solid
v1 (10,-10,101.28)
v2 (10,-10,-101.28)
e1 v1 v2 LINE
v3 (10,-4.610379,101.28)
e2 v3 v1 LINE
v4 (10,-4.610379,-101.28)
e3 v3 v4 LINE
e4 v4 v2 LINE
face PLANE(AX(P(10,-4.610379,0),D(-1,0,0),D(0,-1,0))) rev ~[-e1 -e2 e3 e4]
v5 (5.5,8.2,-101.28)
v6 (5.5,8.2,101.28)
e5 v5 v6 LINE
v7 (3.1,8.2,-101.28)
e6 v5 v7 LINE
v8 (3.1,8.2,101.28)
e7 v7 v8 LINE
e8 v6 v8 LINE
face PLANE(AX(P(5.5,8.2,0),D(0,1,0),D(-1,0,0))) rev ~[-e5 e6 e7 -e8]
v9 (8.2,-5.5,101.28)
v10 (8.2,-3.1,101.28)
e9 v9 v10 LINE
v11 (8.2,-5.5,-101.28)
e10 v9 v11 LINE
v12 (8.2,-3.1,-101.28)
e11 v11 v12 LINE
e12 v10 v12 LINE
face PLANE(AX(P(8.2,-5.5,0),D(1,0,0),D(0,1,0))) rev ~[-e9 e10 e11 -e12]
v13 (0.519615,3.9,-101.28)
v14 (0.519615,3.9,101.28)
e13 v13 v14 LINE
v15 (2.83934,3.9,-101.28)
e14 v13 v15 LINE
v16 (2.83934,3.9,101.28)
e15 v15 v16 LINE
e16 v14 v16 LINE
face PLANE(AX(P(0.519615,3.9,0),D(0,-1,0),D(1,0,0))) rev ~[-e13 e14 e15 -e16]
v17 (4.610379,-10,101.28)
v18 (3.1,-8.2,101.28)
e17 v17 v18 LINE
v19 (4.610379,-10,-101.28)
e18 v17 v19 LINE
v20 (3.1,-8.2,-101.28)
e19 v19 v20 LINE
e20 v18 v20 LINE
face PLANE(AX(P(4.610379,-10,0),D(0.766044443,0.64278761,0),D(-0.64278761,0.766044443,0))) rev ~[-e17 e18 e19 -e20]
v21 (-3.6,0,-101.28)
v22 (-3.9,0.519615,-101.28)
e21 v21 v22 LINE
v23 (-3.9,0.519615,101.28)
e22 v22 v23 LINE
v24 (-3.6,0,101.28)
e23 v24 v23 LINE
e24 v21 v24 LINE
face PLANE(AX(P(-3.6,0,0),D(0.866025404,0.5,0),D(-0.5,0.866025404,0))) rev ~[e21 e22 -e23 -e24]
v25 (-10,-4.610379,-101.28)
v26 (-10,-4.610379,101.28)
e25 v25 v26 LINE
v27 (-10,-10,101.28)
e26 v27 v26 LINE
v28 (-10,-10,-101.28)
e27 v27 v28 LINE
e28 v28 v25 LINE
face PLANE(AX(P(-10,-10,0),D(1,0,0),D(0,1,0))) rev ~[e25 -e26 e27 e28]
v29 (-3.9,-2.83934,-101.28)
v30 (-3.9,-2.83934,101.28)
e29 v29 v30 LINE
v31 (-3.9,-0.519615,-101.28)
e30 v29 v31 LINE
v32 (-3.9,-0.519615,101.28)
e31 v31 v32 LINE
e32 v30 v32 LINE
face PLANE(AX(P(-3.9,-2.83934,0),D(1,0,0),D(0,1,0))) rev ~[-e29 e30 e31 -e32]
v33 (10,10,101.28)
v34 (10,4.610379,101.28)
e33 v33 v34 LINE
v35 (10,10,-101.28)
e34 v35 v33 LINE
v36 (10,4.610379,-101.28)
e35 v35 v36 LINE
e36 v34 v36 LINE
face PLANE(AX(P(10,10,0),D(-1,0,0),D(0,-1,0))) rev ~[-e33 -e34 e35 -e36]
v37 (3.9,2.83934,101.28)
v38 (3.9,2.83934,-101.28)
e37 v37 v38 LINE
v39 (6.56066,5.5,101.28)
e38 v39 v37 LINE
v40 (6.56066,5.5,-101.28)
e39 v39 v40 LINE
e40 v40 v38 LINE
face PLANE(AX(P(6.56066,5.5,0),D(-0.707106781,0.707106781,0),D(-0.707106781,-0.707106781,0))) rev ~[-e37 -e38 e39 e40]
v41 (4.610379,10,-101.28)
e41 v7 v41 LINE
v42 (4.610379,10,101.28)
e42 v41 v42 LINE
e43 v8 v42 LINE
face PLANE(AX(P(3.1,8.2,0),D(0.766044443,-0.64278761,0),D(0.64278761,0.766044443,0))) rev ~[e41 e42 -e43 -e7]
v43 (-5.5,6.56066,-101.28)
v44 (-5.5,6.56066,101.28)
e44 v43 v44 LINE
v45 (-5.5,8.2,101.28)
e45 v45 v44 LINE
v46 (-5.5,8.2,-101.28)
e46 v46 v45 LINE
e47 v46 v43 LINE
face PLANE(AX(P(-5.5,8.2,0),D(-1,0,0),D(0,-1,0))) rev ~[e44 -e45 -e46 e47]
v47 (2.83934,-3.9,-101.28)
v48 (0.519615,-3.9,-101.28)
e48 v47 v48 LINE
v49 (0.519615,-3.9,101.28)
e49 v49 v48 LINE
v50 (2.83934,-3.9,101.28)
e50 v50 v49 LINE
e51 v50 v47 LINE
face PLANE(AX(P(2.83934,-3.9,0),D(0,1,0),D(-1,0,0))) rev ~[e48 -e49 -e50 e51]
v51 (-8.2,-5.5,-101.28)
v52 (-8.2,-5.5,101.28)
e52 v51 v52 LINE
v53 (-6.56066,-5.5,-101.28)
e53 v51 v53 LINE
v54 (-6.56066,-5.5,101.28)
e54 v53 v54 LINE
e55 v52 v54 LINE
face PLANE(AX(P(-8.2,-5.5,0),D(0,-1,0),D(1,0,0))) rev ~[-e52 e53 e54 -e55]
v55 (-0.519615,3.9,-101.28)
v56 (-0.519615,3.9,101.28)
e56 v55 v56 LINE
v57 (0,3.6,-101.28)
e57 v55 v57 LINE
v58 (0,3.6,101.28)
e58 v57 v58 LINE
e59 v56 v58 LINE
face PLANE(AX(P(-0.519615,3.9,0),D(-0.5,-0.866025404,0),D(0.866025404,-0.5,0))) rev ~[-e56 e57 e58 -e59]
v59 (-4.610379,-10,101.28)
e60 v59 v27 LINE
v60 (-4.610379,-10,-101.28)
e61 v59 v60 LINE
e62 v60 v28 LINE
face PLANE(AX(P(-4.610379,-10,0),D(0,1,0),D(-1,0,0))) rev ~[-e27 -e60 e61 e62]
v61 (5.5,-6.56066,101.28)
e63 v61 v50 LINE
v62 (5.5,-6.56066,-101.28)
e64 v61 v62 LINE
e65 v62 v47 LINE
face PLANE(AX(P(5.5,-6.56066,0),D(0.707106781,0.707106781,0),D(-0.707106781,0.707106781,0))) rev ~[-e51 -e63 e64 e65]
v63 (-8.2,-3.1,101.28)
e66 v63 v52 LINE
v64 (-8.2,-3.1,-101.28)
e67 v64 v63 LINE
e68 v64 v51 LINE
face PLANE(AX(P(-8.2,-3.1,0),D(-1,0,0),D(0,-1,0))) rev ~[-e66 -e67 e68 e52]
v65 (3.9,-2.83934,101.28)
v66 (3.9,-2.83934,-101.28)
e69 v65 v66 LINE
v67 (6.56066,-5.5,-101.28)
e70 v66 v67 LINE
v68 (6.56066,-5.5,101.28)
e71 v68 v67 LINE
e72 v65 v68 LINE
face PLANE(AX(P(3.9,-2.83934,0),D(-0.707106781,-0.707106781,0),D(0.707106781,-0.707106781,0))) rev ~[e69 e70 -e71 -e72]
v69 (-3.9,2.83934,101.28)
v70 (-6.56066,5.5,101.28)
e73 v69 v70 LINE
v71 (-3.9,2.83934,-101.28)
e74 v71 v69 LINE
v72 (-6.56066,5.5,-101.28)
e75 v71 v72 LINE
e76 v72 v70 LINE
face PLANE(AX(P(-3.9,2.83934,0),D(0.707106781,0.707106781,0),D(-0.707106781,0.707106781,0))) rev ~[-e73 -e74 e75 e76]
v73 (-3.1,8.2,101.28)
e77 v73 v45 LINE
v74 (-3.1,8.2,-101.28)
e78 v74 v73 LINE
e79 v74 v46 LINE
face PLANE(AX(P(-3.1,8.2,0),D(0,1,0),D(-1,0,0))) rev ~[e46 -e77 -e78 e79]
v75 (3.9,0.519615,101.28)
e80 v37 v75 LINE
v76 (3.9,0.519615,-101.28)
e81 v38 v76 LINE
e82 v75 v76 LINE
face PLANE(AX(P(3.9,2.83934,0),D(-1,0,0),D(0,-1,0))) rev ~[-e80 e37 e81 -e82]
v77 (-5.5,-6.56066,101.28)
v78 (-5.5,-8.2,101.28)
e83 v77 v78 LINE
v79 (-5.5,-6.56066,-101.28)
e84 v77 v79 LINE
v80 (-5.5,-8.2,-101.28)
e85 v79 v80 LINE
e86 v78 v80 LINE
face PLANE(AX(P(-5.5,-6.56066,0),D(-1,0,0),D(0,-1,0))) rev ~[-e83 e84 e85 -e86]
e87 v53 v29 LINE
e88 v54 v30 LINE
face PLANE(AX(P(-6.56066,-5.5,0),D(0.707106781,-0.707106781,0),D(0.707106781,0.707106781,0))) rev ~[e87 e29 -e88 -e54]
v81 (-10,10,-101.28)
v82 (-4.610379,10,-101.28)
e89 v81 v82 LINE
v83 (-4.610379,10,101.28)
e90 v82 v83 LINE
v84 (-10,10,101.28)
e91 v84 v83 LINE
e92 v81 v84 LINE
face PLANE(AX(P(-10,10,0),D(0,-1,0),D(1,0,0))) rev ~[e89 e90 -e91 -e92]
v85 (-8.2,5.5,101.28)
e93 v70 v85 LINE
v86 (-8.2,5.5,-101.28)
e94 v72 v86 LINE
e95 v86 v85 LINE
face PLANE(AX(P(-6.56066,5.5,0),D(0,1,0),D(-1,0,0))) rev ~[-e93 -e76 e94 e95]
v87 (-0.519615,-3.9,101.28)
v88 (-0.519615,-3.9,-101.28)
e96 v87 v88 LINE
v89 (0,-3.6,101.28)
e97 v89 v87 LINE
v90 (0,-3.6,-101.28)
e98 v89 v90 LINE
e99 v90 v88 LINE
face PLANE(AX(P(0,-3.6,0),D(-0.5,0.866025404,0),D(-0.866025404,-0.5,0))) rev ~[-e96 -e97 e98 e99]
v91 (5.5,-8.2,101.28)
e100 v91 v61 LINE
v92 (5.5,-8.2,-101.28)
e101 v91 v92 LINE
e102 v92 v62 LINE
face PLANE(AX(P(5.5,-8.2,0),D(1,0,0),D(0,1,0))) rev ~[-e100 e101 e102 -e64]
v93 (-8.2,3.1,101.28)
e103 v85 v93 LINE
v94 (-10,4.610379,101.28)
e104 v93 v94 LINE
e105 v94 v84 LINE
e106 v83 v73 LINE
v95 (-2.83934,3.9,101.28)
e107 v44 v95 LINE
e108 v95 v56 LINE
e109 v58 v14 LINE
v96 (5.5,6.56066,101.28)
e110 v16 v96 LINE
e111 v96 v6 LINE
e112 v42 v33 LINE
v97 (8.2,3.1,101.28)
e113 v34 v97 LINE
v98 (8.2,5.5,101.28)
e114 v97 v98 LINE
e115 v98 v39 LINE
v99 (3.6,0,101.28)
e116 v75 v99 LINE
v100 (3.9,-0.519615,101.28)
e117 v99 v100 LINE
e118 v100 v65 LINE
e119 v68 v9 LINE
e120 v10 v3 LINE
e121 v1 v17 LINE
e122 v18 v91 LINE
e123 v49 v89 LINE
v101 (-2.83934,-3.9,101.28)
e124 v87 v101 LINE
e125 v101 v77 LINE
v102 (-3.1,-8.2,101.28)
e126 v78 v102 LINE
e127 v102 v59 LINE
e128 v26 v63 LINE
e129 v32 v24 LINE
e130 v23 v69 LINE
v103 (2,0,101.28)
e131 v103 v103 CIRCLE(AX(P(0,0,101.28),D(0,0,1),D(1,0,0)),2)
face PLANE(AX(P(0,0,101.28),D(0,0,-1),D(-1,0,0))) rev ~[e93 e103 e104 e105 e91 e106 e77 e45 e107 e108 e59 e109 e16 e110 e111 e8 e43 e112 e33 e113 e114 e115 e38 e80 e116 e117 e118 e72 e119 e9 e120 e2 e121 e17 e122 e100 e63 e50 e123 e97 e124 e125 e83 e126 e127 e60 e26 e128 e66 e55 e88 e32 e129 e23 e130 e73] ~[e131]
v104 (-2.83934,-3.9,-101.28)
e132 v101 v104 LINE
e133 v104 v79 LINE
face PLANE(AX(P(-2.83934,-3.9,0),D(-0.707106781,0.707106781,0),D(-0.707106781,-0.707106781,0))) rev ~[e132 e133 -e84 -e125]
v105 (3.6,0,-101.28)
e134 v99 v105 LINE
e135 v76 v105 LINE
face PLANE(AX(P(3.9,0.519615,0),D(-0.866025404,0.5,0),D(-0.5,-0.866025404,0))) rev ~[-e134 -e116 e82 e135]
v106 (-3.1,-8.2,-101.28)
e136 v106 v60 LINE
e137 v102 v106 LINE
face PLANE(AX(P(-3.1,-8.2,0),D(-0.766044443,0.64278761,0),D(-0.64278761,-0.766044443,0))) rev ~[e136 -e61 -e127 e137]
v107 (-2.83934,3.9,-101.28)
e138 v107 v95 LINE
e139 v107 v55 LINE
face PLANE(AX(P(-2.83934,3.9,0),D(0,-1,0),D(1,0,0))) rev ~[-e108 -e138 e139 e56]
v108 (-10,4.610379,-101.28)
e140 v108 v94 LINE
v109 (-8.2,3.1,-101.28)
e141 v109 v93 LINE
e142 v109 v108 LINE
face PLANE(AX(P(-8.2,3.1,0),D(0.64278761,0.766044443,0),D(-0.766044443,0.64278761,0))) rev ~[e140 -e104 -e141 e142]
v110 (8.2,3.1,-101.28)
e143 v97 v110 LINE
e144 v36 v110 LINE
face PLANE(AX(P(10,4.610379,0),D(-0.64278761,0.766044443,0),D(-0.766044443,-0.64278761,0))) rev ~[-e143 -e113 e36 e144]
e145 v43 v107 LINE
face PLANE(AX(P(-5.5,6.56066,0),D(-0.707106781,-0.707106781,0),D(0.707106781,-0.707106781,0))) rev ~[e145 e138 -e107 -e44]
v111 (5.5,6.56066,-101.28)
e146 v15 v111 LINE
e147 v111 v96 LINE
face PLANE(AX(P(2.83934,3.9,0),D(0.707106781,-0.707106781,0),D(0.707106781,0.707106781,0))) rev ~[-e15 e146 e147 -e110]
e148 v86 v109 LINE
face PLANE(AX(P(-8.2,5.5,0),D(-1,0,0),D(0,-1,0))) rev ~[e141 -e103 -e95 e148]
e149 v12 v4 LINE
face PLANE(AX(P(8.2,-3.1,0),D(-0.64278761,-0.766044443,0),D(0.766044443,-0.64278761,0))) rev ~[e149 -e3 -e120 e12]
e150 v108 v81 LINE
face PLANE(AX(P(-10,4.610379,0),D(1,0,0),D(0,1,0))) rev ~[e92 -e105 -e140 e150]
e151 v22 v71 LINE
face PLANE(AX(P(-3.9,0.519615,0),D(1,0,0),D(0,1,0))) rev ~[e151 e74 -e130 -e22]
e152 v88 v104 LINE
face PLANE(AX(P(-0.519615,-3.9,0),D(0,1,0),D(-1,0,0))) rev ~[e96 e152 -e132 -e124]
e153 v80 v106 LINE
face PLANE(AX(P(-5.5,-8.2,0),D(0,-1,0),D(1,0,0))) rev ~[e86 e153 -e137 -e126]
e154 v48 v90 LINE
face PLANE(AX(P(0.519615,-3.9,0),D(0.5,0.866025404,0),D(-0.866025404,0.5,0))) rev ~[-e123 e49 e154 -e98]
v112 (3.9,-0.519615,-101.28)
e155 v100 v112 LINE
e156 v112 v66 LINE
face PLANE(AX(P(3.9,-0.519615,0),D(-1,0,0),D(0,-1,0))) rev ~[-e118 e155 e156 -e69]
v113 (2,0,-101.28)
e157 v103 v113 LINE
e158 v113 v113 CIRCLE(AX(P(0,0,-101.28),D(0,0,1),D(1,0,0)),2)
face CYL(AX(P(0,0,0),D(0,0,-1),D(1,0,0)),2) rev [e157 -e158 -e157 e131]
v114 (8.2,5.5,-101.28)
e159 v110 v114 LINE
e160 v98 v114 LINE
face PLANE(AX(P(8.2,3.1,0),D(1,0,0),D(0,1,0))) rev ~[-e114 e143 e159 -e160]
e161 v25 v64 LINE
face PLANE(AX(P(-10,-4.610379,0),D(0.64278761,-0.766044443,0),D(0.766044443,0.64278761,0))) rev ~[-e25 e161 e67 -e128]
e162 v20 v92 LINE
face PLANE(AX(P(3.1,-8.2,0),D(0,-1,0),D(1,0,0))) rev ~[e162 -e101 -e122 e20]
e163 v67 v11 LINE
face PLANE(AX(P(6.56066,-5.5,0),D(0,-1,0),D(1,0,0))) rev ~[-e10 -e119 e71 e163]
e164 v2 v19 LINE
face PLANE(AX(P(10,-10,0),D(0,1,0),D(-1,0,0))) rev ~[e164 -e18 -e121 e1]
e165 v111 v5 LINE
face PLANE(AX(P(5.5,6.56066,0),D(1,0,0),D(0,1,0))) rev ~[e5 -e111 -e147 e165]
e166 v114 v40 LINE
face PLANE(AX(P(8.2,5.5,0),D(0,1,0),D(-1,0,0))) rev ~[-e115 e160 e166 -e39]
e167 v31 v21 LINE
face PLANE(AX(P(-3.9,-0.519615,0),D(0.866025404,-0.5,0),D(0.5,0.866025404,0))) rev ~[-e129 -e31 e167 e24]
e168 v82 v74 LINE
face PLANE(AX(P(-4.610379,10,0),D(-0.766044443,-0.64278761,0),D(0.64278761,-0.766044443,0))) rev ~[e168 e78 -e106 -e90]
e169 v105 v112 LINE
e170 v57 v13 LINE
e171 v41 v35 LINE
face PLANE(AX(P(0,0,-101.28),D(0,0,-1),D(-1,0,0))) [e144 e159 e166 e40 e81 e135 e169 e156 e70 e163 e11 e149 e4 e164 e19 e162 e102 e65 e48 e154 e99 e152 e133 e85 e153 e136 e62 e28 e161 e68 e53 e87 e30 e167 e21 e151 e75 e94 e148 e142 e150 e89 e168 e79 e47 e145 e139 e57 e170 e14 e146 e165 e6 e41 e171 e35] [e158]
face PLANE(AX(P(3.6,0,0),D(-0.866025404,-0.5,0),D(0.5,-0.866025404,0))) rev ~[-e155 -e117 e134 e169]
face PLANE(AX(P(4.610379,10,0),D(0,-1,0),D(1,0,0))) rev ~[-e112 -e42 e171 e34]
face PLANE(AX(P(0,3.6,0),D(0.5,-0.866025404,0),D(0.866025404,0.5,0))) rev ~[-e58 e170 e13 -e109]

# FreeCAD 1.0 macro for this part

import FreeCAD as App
import Part
import Sketcher
from FreeCAD import Vector
Q = App.Units.Quantity


def add_polygon(sketch, points):
    """Adds a closed chain of lines whose ends are joined by coincident constraints."""
    first, n = sketch.GeometryCount, len(points)
    for a, b in zip(points, points[1:] + points[:1]):
        sketch.addGeometry(Part.LineSegment(App.Vector(*a, 0), App.Vector(*b, 0)), False)
    for i in range(n):
        sketch.addConstraint(Sketcher.Constraint("Coincident", first + i, 2, first + (i + 1) % n, 1))

doc = App.newDocument("Part")
body = doc.addObject("PartDesign::Body", "Body")

# Sketch on XY plane
sketch1 = doc.addObject("Sketcher::SketchObject", "Sketch")
body.addObject(sketch1)
sketch1.AttachmentSupport = (doc.XY_Plane, [""])
sketch1.MapMode = "FlatFace"
add_polygon(sketch1, [(10, 4.6), (10, 10), (4.6, 10), (3.1, 8.2), (5.5, 8.2), (5.5, 6.6), (2.8, 3.9), (0.5, 3.9), (0, 3.6), (-0.5, 3.9), (-2.8, 3.9), (-5.5, 6.6), (-5.5, 8.2), (-3.1, 8.2), (-4.6, 10), (-10, 10), (-10, 4.6), (-8.2, 3.1), (-8.2, 5.5), (-6.6, 5.5), (-3.9, 2.8), (-3.9, 0.5), (-3.6, 0), (-3.9, -0.5), (-3.9, -2.8), (-6.6, -5.5), (-8.2, -5.5), (-8.2, -3.1), (-10, -4.6), (-10, -10), (-4.6, -10), (-3.1, -8.2), (-5.5, -8.2), (-5.5, -6.6), (-2.8, -3.9), (-0.5, -3.9), (0, -3.6), (0.5, -3.9), (2.8, -3.9), (5.5, -6.6), (5.5, -8.2), (3.1, -8.2), (4.6, -10), (10, -10), (10, -4.6), (8.2, -3.1), (8.2, -5.5), (6.6, -5.5), (3.9, -2.8), (3.9, -0.5), (3.6, 0), (3.9, 0.5), (3.9, 2.8), (6.6, 5.5), (8.2, 5.5), (8.2, 3.1)])  # lines 0-55
sketch1.addGeometry(Part.Circle(Vector(0, 0, 0), Vector(0, 0, 1), 2), False)  # 56
sketch1.addConstraint([
    Sketcher.Constraint("Vertical", 0),
    Sketcher.Constraint("Horizontal", 1),
    Sketcher.Constraint("Horizontal", 3),
    Sketcher.Constraint("Vertical", 4),
    Sketcher.Constraint("Horizontal", 6),
    Sketcher.Constraint("Horizontal", 9),
    Sketcher.Constraint("Vertical", 11),
    Sketcher.Constraint("Horizontal", 12),
    Sketcher.Constraint("Horizontal", 14),
    Sketcher.Constraint("Vertical", 15),
    Sketcher.Constraint("Vertical", 17),
    Sketcher.Constraint("Horizontal", 18),
    Sketcher.Constraint("Vertical", 20),
    Sketcher.Constraint("Vertical", 23),
    Sketcher.Constraint("Horizontal", 25),
    Sketcher.Constraint("Vertical", 26),
    Sketcher.Constraint("Vertical", 28),
    Sketcher.Constraint("Horizontal", 29),
    Sketcher.Constraint("Horizontal", 31),
    Sketcher.Constraint("Vertical", 32),
    Sketcher.Constraint("Horizontal", 34),
    Sketcher.Constraint("Horizontal", 37),
    Sketcher.Constraint("Vertical", 39),
    Sketcher.Constraint("Horizontal", 40),
    Sketcher.Constraint("Horizontal", 42),
    Sketcher.Constraint("Vertical", 43),
    Sketcher.Constraint("Vertical", 45),
    Sketcher.Constraint("Horizontal", 46),
    Sketcher.Constraint("Vertical", 48),
    Sketcher.Constraint("Vertical", 51),
    Sketcher.Constraint("Horizontal", 53),
    Sketcher.Constraint("Vertical", 54),
    Sketcher.Constraint("Coincident", 56, 3, -1, 1),
    Sketcher.Constraint("Symmetric", 0, 2, 28, 2, -1, 1),
    Sketcher.Constraint("Symmetric", 2, 2, 30, 2, -1, 1),
    Sketcher.Constraint("Symmetric", 4, 2, 32, 2, -1, 1),
    Sketcher.Constraint("Symmetric", 5, 2, 33, 2, -1, 1),
    Sketcher.Constraint("Symmetric", 7, 2, 35, 2, -1, 1),
    Sketcher.Constraint("Symmetric", 8, 2, 36, 2, -1, 1),
    Sketcher.Constraint("Symmetric", 10, 2, 38, 2, -1, 1),
    Sketcher.Constraint("Symmetric", 12, 2, 40, 2, -1, 1),
    Sketcher.Constraint("Symmetric", 13, 2, 41, 2, -1, 1),
    Sketcher.Constraint("Symmetric", 15, 2, 43, 2, -1, 1),
    Sketcher.Constraint("Symmetric", 16, 2, 44, 2, -1, 1),
    Sketcher.Constraint("Symmetric", 18, 2, 46, 2, -1, 1),
    Sketcher.Constraint("Symmetric", 19, 2, 47, 2, -1, 1),
    Sketcher.Constraint("Symmetric", 21, 2, 49, 2, -1, 1),
    Sketcher.Constraint("Symmetric", 22, 2, 50, 2, -1, 1),
    Sketcher.Constraint("Symmetric", 24, 2, 52, 2, -1, 1),
    Sketcher.Constraint("Symmetric", 26, 2, 54, 2, -1, 1),
    Sketcher.Constraint("Symmetric", 6, 2, 8, 2, -2),
    Sketcher.Constraint("Symmetric", 4, 2, 10, 2, -2),
    Sketcher.Constraint("Symmetric", 2, 2, 12, 2, -2),
    Sketcher.Constraint("Symmetric", 1, 2, 13, 2, -2),
    Sketcher.Constraint("Symmetric", 27, 2, 43, 2, -2),
    Sketcher.Constraint("Symmetric", 26, 2, 44, 2, -2),
    Sketcher.Constraint("Symmetric", 24, 2, 46, 2, -2),
    Sketcher.Constraint("Symmetric", 23, 2, 47, 2, -2),
    Sketcher.Constraint("PointOnObject", 7, 2, -2),
    Sketcher.Constraint("PointOnObject", 21, 2, -1),
    Sketcher.Constraint("Perpendicular", 5, 10),
    Sketcher.Constraint("Perpendicular", 2, 16),
    Sketcher.Constraint("Parallel", 10, 19),
    Sketcher.Constraint("Perpendicular", 7, 21),
    Sketcher.Constraint("Perpendicular", 8, 22),
    Sketcher.Constraint("Perpendicular", 19, 24),
    Sketcher.Constraint("Perpendicular", 16, 30),
    Sketcher.Constraint("Perpendicular", 21, 35),
    Sketcher.Constraint("Perpendicular", 33, 38),
    Sketcher.Constraint("Perpendicular", 35, 49),
    Sketcher.Constraint("Perpendicular", 47, 52),
    Sketcher.Constraint("Perpendicular", 41, 55),
    Sketcher.Constraint("Equal", 42, 0),
    Sketcher.Constraint("Equal", 53, 4),
    Sketcher.Constraint("Equal", 40, 17),
    Sketcher.Constraint("Equal", 37, 20),
    Sketcher.Constraint("Equal", 13, 16),
    Sketcher.Constraint("Equal", 10, 19),
    Sketcher.Constraint("Equal", 8, 21),
    Sketcher.Constraint("Diameter", 56, Q("4 mm")),
    Sketcher.Constraint("Angle", 2, Q("-130 deg")),
    Sketcher.Constraint("Angle", 7, Q("-150 deg")),
    Sketcher.Constraint("DistanceX", 3, 1, 3, 2, Q("2.4 mm")),
    Sketcher.Constraint("DistanceX", -1, 1, 0, 2, Q("10 mm")),
    Sketcher.Constraint("Distance", 7, Q("0.6 mm")),
    Sketcher.Constraint("DistanceX", -1, 1, 2, 2, Q("3.1 mm")),
    Sketcher.Constraint("DistanceY", -1, 1, 2, 2, Q("8.2 mm")),
    Sketcher.Constraint("DistanceY", -1, 1, 5, 2, Q("3.9 mm")),
    Sketcher.Constraint("DistanceX", 18, 1, 18, 2, Q("1.63934 mm")),
])
pad1 = doc.addObject("PartDesign::Pad", "Pad")
body.addObject(pad1)
pad1.Profile = sketch1
pad1.Length = 202.56
pad1.Midplane = True

doc.recompute()
